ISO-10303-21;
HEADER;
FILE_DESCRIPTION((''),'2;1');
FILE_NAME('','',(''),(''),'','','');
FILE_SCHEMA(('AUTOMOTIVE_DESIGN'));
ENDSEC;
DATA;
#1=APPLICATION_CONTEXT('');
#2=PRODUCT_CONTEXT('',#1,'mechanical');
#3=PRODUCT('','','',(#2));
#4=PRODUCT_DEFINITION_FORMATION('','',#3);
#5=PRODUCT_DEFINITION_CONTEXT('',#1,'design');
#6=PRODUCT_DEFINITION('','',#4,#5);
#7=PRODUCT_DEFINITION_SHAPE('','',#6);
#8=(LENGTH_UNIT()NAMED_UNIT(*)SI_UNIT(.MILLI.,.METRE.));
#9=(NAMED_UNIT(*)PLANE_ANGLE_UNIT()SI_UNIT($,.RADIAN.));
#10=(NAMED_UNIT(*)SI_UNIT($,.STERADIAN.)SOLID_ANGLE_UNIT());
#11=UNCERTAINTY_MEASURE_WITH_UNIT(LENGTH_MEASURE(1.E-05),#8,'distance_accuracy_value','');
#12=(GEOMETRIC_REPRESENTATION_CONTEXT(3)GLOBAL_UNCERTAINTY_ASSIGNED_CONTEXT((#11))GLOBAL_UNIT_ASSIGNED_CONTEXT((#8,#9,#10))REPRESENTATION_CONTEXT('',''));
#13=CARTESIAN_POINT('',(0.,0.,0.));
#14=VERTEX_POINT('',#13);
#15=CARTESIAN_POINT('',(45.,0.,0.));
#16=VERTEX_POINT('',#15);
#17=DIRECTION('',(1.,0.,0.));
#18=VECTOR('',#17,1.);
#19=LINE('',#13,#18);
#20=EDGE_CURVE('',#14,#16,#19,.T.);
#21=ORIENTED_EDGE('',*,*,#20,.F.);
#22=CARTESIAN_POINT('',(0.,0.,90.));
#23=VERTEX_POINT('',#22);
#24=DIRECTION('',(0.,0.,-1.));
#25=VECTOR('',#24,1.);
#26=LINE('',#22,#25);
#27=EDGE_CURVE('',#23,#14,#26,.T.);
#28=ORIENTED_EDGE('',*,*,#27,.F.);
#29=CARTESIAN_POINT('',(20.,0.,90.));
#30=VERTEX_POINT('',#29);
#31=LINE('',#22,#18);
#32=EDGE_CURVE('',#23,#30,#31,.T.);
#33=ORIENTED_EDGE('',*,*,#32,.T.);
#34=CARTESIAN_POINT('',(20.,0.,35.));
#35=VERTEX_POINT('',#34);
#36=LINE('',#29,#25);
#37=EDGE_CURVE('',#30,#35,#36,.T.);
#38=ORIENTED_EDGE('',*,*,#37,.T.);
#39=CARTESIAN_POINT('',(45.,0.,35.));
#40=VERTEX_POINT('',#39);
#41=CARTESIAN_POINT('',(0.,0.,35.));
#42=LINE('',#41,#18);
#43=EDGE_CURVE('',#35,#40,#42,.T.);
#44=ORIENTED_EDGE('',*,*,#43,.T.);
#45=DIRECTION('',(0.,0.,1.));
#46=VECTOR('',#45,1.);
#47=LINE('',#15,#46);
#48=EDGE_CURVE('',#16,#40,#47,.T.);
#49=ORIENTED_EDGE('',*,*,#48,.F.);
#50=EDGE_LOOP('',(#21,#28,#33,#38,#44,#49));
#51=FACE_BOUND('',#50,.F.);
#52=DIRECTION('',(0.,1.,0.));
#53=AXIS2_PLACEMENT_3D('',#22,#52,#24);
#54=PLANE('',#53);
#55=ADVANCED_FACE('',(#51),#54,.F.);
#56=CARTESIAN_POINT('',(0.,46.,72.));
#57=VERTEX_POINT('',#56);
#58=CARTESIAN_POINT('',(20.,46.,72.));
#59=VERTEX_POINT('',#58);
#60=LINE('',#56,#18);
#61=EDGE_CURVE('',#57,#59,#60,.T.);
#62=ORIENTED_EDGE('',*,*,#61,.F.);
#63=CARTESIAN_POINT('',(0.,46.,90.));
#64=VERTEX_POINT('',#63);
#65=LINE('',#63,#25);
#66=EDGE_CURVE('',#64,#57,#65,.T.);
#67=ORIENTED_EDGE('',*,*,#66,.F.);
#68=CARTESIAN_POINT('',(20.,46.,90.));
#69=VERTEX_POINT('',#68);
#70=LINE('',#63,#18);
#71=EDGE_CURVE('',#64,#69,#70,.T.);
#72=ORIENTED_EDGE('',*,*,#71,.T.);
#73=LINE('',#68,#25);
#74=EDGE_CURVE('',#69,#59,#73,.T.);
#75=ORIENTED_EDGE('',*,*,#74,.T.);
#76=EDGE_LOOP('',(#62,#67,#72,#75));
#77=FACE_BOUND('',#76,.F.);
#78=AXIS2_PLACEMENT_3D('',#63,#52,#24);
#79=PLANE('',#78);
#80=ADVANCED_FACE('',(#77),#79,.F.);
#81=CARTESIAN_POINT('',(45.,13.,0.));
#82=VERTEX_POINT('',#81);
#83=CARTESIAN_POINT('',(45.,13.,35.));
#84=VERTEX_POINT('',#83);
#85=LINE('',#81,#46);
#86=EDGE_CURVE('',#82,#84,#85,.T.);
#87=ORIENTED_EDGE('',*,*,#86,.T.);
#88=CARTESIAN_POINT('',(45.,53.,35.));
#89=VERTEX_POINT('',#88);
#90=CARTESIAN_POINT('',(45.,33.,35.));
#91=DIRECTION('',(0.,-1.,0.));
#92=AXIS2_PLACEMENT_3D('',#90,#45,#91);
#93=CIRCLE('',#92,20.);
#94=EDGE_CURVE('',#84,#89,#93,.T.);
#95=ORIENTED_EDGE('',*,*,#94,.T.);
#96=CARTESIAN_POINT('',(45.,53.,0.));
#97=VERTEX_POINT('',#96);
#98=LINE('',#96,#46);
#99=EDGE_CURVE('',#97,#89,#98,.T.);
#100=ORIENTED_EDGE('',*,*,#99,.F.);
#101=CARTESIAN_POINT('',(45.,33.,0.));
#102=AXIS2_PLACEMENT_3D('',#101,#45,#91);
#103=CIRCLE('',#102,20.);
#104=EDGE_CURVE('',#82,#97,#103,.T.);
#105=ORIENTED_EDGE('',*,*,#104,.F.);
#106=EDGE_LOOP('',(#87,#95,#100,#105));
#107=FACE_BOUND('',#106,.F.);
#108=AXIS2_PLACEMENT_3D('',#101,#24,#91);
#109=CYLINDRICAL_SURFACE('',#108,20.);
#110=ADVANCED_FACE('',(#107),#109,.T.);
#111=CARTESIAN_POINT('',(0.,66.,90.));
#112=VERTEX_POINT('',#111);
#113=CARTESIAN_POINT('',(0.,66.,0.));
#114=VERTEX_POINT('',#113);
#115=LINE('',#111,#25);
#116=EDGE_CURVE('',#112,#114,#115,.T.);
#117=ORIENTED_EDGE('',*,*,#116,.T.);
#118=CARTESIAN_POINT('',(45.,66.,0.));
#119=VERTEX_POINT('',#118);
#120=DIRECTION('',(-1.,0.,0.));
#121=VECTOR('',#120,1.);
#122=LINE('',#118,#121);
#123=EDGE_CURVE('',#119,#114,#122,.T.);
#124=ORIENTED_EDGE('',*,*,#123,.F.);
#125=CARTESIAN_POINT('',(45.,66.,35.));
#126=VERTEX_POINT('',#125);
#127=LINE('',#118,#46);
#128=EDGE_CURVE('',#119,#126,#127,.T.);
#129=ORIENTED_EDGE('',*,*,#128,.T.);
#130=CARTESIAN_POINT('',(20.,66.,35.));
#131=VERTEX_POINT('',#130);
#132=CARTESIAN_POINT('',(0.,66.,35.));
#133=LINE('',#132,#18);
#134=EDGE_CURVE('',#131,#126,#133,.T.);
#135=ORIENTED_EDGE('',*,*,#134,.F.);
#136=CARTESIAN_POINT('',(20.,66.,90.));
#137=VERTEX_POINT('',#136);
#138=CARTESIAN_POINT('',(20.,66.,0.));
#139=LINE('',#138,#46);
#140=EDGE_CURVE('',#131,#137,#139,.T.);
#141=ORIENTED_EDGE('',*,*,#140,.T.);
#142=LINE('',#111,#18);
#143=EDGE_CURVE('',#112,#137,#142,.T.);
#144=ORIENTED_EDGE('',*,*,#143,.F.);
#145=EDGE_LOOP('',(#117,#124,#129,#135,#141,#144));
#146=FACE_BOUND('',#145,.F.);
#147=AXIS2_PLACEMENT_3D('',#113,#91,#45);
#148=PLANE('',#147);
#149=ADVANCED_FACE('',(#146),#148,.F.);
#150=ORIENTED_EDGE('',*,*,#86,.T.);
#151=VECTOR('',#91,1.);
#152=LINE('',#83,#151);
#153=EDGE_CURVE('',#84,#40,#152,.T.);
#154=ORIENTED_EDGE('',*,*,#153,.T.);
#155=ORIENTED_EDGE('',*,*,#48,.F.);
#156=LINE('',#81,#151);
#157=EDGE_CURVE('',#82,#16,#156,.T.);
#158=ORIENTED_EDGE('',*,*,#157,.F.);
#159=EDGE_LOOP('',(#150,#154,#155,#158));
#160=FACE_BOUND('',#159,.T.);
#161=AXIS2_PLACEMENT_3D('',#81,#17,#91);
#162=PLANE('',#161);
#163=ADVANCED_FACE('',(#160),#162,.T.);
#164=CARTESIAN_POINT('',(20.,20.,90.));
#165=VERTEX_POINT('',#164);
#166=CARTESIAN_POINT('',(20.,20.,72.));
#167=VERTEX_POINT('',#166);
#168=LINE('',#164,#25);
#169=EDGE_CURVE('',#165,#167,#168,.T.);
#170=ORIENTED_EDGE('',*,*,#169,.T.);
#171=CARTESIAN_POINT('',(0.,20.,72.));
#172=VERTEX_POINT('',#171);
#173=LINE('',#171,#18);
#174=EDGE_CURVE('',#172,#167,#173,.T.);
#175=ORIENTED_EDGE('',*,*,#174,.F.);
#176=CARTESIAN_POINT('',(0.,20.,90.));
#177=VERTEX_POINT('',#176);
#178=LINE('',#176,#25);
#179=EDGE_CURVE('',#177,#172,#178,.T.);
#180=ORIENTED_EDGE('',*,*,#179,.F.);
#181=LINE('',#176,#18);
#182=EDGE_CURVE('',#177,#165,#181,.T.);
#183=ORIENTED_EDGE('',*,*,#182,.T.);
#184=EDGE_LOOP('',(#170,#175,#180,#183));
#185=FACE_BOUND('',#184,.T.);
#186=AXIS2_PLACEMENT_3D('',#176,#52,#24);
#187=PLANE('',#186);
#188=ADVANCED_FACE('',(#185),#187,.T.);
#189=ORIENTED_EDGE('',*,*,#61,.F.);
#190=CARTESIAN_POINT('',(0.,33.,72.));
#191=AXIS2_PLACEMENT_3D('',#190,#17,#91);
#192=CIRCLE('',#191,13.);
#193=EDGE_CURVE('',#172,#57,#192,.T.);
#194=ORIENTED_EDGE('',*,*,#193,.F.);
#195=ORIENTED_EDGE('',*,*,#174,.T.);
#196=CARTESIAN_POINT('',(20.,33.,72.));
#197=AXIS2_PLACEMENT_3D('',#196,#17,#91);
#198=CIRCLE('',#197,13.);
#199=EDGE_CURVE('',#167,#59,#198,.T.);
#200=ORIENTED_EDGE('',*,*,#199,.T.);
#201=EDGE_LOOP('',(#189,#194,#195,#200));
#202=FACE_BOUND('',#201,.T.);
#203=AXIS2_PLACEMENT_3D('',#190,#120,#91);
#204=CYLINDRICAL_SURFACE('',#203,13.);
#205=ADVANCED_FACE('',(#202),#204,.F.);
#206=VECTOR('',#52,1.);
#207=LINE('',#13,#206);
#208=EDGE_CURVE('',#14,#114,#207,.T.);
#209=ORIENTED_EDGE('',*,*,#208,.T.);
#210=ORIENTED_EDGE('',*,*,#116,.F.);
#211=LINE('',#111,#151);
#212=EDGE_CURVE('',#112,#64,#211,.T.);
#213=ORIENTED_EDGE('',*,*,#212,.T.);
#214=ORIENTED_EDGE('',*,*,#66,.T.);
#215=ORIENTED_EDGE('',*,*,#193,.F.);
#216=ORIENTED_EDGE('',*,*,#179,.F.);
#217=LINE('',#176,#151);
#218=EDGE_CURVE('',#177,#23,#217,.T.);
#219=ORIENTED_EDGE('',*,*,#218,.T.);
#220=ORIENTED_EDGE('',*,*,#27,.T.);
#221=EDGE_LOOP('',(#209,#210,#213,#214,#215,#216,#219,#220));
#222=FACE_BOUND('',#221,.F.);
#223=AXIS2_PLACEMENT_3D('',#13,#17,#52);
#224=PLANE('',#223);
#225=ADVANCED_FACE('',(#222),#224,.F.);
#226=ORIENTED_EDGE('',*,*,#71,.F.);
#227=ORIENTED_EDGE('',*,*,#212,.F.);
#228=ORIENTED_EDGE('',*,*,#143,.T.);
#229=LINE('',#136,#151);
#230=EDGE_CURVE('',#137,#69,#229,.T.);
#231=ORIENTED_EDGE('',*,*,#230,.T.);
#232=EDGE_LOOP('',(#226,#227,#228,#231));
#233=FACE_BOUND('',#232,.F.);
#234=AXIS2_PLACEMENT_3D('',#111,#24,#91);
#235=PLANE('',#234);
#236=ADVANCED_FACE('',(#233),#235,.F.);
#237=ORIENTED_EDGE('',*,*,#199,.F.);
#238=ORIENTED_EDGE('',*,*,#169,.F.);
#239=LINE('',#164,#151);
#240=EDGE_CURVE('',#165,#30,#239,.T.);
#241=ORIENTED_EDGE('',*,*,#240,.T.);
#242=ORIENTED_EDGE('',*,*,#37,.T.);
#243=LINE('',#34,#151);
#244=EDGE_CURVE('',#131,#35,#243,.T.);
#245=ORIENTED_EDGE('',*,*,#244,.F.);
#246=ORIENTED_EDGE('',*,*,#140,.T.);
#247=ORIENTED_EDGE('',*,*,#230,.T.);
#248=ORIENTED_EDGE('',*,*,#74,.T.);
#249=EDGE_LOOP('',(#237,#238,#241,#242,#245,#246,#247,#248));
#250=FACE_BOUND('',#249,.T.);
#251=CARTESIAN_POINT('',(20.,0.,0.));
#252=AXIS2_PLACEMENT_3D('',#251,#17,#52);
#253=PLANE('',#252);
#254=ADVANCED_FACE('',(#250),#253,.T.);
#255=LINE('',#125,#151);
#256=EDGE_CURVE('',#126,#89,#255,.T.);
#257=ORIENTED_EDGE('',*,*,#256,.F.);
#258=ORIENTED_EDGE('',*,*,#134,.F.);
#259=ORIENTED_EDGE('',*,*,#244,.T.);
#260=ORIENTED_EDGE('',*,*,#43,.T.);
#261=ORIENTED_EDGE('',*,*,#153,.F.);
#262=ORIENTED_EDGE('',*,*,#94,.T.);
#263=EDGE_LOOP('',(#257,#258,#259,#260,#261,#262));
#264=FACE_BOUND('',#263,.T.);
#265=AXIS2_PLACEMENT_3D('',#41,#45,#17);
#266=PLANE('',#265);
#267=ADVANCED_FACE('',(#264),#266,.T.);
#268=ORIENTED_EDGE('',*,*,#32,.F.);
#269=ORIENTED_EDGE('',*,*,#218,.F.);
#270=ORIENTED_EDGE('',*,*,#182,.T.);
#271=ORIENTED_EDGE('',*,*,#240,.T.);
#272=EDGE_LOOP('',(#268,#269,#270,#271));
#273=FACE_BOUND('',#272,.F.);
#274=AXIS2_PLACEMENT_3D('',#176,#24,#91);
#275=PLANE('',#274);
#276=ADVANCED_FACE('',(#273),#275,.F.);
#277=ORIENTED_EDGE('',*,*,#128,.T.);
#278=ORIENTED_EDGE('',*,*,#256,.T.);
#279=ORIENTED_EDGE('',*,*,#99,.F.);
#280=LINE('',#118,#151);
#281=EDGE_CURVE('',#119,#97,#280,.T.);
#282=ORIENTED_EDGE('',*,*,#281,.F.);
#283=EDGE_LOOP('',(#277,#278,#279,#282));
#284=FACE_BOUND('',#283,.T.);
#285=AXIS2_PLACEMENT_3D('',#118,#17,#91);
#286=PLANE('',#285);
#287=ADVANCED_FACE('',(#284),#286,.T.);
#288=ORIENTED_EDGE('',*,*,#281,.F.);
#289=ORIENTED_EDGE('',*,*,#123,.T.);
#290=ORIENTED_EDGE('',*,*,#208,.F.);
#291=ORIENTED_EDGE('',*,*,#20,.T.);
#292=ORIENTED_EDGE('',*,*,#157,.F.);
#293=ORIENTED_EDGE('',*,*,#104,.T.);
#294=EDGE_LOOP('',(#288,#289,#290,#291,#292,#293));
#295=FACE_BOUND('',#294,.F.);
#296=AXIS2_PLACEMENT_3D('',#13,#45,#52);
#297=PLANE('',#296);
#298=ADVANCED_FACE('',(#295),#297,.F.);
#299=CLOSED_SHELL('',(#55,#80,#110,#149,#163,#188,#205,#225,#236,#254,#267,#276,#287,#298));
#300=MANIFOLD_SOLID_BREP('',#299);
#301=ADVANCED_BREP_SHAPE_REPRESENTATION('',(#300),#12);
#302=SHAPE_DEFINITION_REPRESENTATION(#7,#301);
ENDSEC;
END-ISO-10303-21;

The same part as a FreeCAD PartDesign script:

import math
import FreeCAD as App
import Part
import Sketcher
from FreeCAD import Vector

doc = App.newDocument("Part")
params = doc.addObject("Spreadsheet::Sheet", "Params")
for row, (alias, value) in enumerate([
    ("sketch1_radius", "13 mm"),
    ("sketch1_width", "66 mm"),
    ("sketch1_height", "90 mm"),
    ("sketch1_height2", "18 mm"),
    ("pad1_length", "20 mm"),
    ("sketch2_radius", "20 mm"),
    ("sketch2_width", "45 mm"),
    ("sketch2_height", "66 mm"),
    ("pad2_length", "35 mm"),
], start=1):
    params.set(f"A{row}", alias)
    params.set(f"B{row}", "=" + value)
    params.setAlias(f"B{row}", alias)

body = doc.addObject("PartDesign::Body", "Body")

sketch1 = doc.addObject("Sketcher::SketchObject", "Sketch")
body.addObject(sketch1)
sketch1.AttachmentSupport = (doc.YZ_Plane, [""])
sketch1.MapMode = "FlatFace"
sketch1.addGeometry([
    Part.LineSegment(Vector(0, 90, 0), Vector(0, 0, 0)),
    Part.LineSegment(Vector(0, 0, 0), Vector(66, 0, 0)),
    Part.LineSegment(Vector(66, 0, 0), Vector(66, 90, 0)),
    Part.LineSegment(Vector(66, 90, 0), Vector(46, 90, 0)),
    Part.LineSegment(Vector(46, 90, 0), Vector(46, 72, 0)),
    Part.ArcOfCircle(Part.Circle(Vector(33, 72, 0), Vector(0, 0, 1), 13), math.radians(180), math.radians(360)),
    Part.LineSegment(Vector(20, 72, 0), Vector(20, 90, 0)),
    Part.LineSegment(Vector(20, 90, 0), Vector(0, 90, 0)),
], False)
sketch1.addConstraint([
    Sketcher.Constraint("Coincident", 0, 2, 1, 1),
    Sketcher.Constraint("Coincident", 1, 2, 2, 1),
    Sketcher.Constraint("Coincident", 2, 2, 3, 1),
    Sketcher.Constraint("Coincident", 3, 2, 4, 1),
    Sketcher.Constraint("Tangent", 4, 2, 5, 2),
    Sketcher.Constraint("Tangent", 5, 1, 6, 1),
    Sketcher.Constraint("Coincident", 6, 2, 7, 1),
    Sketcher.Constraint("Coincident", 7, 2, 0, 1),
    Sketcher.Constraint("Vertical", 0),
    Sketcher.Constraint("Horizontal", 1),
    Sketcher.Constraint("Vertical", 2),
    Sketcher.Constraint("Horizontal", 3),
    Sketcher.Constraint("Vertical", 4),
    Sketcher.Constraint("Vertical", 6),
    Sketcher.Constraint("Horizontal", 7),
    Sketcher.Constraint("Coincident", 0, 2, -1, 1),
    Sketcher.Constraint("Horizontal", 3, 2, 6, 2),
    Sketcher.Constraint("Equal", 3, 7),
    Sketcher.Constraint("Radius", 5, 13.0),
    Sketcher.Constraint("DistanceX", 1, 1, 1, 2, 66.0),
    Sketcher.Constraint("DistanceY", 0, 2, 0, 1, 90.0),
    Sketcher.Constraint("DistanceY", 4, 2, 4, 1, 18.0),
])
sketch1.setExpression("Constraints[18]", "Params.sketch1_radius")
sketch1.setExpression("Constraints[19]", "Params.sketch1_width")
sketch1.setExpression("Constraints[20]", "Params.sketch1_height")
sketch1.setExpression("Constraints[21]", "Params.sketch1_height2")
pad1 = doc.addObject("PartDesign::Pad", "Pad")
body.addObject(pad1)
pad1.Profile = sketch1
pad1.setExpression("Length", "Params.pad1_length")

sketch2 = doc.addObject("Sketcher::SketchObject", "Sketch001")
body.addObject(sketch2)
sketch2.AttachmentSupport = (doc.XY_Plane, [""])
sketch2.MapMode = "FlatFace"
sketch2.addGeometry([
    Part.LineSegment(Vector(0, 66, 0), Vector(0, 0, 0)),
    Part.LineSegment(Vector(0, 0, 0), Vector(45, 0, 0)),
    Part.LineSegment(Vector(45, 0, 0), Vector(45, 13, 0)),
    Part.ArcOfCircle(Part.Circle(Vector(45, 33, 0), Vector(0, 0, 1), 20), math.radians(-90), math.radians(90)),
    Part.LineSegment(Vector(45, 53, 0), Vector(45, 66, 0)),
    Part.LineSegment(Vector(45, 66, 0), Vector(0, 66, 0)),
], False)
sketch2.addConstraint([
    Sketcher.Constraint("Coincident", 0, 2, 1, 1),
    Sketcher.Constraint("Coincident", 1, 2, 2, 1),
    Sketcher.Constraint("Coincident", 2, 2, 3, 1),
    Sketcher.Constraint("Coincident", 3, 2, 4, 1),
    Sketcher.Constraint("Coincident", 4, 2, 5, 1),
    Sketcher.Constraint("Coincident", 5, 2, 0, 1),
    Sketcher.Constraint("Vertical", 0),
    Sketcher.Constraint("Horizontal", 1),
    Sketcher.Constraint("Vertical", 2),
    Sketcher.Constraint("Vertical", 4),
    Sketcher.Constraint("Horizontal", 5),
    Sketcher.Constraint("Coincident", 0, 2, -1, 1),
    Sketcher.Constraint("Vertical", 3, 3, 1, 2),
    Sketcher.Constraint("Vertical", 2, 2, 3, 2),
    Sketcher.Constraint("Equal", 2, 4),
    Sketcher.Constraint("Radius", 3, 20.0),
    Sketcher.Constraint("DistanceX", 1, 1, 1, 2, 45.0),
    Sketcher.Constraint("DistanceY", 0, 2, 0, 1, 66.0),
])
sketch2.setExpression("Constraints[15]", "Params.sketch2_radius")
sketch2.setExpression("Constraints[16]", "Params.sketch2_width")
sketch2.setExpression("Constraints[17]", "Params.sketch2_height")
pad2 = doc.addObject("PartDesign::Pad", "Pad001")
body.addObject(pad2)
pad2.Profile = sketch2
pad2.setExpression("Length", "Params.pad2_length")

doc.recompute()
